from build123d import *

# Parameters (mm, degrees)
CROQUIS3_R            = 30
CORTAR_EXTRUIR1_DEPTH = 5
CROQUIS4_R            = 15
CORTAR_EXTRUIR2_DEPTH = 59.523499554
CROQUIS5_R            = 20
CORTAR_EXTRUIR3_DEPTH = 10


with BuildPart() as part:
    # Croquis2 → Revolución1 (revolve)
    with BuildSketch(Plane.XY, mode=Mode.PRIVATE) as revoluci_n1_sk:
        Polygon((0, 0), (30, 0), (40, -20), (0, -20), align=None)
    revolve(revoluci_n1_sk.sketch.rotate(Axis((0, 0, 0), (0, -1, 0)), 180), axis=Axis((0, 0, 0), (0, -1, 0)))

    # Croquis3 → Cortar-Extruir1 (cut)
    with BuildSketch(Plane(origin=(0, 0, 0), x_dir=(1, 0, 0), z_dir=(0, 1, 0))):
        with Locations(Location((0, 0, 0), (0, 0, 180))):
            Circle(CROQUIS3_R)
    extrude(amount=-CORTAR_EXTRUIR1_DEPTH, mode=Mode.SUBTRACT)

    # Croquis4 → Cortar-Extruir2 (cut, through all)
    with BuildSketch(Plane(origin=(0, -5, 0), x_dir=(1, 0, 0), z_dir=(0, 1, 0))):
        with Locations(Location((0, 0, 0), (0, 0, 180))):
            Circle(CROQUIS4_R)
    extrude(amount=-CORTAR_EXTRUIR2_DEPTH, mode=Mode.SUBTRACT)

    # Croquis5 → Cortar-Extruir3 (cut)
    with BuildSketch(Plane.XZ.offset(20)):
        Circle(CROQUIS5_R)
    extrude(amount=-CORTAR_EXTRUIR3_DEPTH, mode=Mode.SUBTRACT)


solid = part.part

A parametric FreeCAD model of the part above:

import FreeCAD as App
import Part
import Sketcher

doc = App.newDocument("Part")
body = doc.addObject("PartDesign::Body", "Body")

sketch1 = doc.addObject("Sketcher::SketchObject", "Sketch")
body.addObject(sketch1)
sketch1.AttachmentSupport = (doc.XY_Plane, [""])
sketch1.MapMode = "FlatFace"
sketch1.addGeometry(Part.LineSegment(App.Vector(30, 0, 0), App.Vector(0, 0, 0)), False)
sketch1.addGeometry(Part.LineSegment(App.Vector(0, 0, 0), App.Vector(0, -20, 0)), False)
sketch1.addGeometry(Part.LineSegment(App.Vector(0, -20, 0), App.Vector(40, -20, 0)), False)
sketch1.addGeometry(Part.LineSegment(App.Vector(40, -20, 0), App.Vector(30, 0, 0)), False)
sketch1.addConstraint(Sketcher.Constraint("Coincident", 0, 2, 1, 1))
sketch1.addConstraint(Sketcher.Constraint("Coincident", 1, 2, 2, 1))
sketch1.addConstraint(Sketcher.Constraint("Coincident", 2, 2, 3, 1))
sketch1.addConstraint(Sketcher.Constraint("Coincident", 3, 2, 0, 1))
sketch1.addConstraint(Sketcher.Constraint("Horizontal", 0))
sketch1.addConstraint(Sketcher.Constraint("Vertical", 1))
sketch1.addConstraint(Sketcher.Constraint("Horizontal", 2))
sketch1.addConstraint(Sketcher.Constraint("Coincident", 0, 2, -1, 1))
sketch1.addConstraint(Sketcher.Constraint("DistanceX", 0, 2, 0, 1, 30.0))
sketch1.addConstraint(Sketcher.Constraint("DistanceX", 2, 1, 2, 2, 40.0))
sketch1.addConstraint(Sketcher.Constraint("DistanceY", 1, 2, 1, 1, 20.0))
revolution = doc.addObject("PartDesign::Revolution", "Revolution")
body.addObject(revolution)
revolution.Profile = sketch1
revolution.ReferenceAxis = (sketch1, ["V_Axis"])
revolution.Angle = 360

sketch2 = doc.addObject("Sketcher::SketchObject", "Sketch001")
body.addObject(sketch2)
sketch2.AttachmentSupport = (doc.XZ_Plane, [""])
sketch2.MapMode = "FlatFace"
sketch2.addGeometry(Part.Circle(App.Vector(0, 0, 0), App.Vector(0, 0, 1), 30), False)
sketch2.addConstraint(Sketcher.Constraint("Coincident", 0, 3, -1, 1))
sketch2.addConstraint(Sketcher.Constraint("Diameter", 0, 60.0))
pocket1 = doc.addObject("PartDesign::Pocket", "Pocket")
body.addObject(pocket1)
pocket1.Profile = sketch2
pocket1.Length = 5
pocket1.Reversed = True

sketch3 = doc.addObject("Sketcher::SketchObject", "Sketch002")
body.addObject(sketch3)
sketch3.AttachmentSupport = (doc.XZ_Plane, [""])
sketch3.MapMode = "FlatFace"
sketch3.AttachmentOffset = App.Placement(App.Vector(0, 0, 5), App.Rotation())
sketch3.addGeometry(Part.Circle(App.Vector(0, 0, 0), App.Vector(0, 0, 1), 15), False)
sketch3.addConstraint(Sketcher.Constraint("Coincident", 0, 3, -1, 1))
sketch3.addConstraint(Sketcher.Constraint("Diameter", 0, 30.0))
pocket2 = doc.addObject("PartDesign::Pocket", "Pocket001")
body.addObject(pocket2)
pocket2.Profile = sketch3
pocket2.Type = "ThroughAll"
pocket2.Reversed = True

sketch4 = doc.addObject("Sketcher::SketchObject", "Sketch003")
body.addObject(sketch4)
sketch4.AttachmentSupport = (doc.XZ_Plane, [""])
sketch4.MapMode = "FlatFace"
sketch4.AttachmentOffset = App.Placement(App.Vector(0, 0, 20), App.Rotation())
sketch4.addGeometry(Part.Circle(App.Vector(0, 0, 0), App.Vector(0, 0, 1), 20), False)
sketch4.addConstraint(Sketcher.Constraint("Coincident", 0, 3, -1, 1))
sketch4.addConstraint(Sketcher.Constraint("Diameter", 0, 40.0))
pocket3 = doc.addObject("PartDesign::Pocket", "Pocket002")
body.addObject(pocket3)
pocket3.Profile = sketch4
pocket3.Length = 10

doc.recompute()
